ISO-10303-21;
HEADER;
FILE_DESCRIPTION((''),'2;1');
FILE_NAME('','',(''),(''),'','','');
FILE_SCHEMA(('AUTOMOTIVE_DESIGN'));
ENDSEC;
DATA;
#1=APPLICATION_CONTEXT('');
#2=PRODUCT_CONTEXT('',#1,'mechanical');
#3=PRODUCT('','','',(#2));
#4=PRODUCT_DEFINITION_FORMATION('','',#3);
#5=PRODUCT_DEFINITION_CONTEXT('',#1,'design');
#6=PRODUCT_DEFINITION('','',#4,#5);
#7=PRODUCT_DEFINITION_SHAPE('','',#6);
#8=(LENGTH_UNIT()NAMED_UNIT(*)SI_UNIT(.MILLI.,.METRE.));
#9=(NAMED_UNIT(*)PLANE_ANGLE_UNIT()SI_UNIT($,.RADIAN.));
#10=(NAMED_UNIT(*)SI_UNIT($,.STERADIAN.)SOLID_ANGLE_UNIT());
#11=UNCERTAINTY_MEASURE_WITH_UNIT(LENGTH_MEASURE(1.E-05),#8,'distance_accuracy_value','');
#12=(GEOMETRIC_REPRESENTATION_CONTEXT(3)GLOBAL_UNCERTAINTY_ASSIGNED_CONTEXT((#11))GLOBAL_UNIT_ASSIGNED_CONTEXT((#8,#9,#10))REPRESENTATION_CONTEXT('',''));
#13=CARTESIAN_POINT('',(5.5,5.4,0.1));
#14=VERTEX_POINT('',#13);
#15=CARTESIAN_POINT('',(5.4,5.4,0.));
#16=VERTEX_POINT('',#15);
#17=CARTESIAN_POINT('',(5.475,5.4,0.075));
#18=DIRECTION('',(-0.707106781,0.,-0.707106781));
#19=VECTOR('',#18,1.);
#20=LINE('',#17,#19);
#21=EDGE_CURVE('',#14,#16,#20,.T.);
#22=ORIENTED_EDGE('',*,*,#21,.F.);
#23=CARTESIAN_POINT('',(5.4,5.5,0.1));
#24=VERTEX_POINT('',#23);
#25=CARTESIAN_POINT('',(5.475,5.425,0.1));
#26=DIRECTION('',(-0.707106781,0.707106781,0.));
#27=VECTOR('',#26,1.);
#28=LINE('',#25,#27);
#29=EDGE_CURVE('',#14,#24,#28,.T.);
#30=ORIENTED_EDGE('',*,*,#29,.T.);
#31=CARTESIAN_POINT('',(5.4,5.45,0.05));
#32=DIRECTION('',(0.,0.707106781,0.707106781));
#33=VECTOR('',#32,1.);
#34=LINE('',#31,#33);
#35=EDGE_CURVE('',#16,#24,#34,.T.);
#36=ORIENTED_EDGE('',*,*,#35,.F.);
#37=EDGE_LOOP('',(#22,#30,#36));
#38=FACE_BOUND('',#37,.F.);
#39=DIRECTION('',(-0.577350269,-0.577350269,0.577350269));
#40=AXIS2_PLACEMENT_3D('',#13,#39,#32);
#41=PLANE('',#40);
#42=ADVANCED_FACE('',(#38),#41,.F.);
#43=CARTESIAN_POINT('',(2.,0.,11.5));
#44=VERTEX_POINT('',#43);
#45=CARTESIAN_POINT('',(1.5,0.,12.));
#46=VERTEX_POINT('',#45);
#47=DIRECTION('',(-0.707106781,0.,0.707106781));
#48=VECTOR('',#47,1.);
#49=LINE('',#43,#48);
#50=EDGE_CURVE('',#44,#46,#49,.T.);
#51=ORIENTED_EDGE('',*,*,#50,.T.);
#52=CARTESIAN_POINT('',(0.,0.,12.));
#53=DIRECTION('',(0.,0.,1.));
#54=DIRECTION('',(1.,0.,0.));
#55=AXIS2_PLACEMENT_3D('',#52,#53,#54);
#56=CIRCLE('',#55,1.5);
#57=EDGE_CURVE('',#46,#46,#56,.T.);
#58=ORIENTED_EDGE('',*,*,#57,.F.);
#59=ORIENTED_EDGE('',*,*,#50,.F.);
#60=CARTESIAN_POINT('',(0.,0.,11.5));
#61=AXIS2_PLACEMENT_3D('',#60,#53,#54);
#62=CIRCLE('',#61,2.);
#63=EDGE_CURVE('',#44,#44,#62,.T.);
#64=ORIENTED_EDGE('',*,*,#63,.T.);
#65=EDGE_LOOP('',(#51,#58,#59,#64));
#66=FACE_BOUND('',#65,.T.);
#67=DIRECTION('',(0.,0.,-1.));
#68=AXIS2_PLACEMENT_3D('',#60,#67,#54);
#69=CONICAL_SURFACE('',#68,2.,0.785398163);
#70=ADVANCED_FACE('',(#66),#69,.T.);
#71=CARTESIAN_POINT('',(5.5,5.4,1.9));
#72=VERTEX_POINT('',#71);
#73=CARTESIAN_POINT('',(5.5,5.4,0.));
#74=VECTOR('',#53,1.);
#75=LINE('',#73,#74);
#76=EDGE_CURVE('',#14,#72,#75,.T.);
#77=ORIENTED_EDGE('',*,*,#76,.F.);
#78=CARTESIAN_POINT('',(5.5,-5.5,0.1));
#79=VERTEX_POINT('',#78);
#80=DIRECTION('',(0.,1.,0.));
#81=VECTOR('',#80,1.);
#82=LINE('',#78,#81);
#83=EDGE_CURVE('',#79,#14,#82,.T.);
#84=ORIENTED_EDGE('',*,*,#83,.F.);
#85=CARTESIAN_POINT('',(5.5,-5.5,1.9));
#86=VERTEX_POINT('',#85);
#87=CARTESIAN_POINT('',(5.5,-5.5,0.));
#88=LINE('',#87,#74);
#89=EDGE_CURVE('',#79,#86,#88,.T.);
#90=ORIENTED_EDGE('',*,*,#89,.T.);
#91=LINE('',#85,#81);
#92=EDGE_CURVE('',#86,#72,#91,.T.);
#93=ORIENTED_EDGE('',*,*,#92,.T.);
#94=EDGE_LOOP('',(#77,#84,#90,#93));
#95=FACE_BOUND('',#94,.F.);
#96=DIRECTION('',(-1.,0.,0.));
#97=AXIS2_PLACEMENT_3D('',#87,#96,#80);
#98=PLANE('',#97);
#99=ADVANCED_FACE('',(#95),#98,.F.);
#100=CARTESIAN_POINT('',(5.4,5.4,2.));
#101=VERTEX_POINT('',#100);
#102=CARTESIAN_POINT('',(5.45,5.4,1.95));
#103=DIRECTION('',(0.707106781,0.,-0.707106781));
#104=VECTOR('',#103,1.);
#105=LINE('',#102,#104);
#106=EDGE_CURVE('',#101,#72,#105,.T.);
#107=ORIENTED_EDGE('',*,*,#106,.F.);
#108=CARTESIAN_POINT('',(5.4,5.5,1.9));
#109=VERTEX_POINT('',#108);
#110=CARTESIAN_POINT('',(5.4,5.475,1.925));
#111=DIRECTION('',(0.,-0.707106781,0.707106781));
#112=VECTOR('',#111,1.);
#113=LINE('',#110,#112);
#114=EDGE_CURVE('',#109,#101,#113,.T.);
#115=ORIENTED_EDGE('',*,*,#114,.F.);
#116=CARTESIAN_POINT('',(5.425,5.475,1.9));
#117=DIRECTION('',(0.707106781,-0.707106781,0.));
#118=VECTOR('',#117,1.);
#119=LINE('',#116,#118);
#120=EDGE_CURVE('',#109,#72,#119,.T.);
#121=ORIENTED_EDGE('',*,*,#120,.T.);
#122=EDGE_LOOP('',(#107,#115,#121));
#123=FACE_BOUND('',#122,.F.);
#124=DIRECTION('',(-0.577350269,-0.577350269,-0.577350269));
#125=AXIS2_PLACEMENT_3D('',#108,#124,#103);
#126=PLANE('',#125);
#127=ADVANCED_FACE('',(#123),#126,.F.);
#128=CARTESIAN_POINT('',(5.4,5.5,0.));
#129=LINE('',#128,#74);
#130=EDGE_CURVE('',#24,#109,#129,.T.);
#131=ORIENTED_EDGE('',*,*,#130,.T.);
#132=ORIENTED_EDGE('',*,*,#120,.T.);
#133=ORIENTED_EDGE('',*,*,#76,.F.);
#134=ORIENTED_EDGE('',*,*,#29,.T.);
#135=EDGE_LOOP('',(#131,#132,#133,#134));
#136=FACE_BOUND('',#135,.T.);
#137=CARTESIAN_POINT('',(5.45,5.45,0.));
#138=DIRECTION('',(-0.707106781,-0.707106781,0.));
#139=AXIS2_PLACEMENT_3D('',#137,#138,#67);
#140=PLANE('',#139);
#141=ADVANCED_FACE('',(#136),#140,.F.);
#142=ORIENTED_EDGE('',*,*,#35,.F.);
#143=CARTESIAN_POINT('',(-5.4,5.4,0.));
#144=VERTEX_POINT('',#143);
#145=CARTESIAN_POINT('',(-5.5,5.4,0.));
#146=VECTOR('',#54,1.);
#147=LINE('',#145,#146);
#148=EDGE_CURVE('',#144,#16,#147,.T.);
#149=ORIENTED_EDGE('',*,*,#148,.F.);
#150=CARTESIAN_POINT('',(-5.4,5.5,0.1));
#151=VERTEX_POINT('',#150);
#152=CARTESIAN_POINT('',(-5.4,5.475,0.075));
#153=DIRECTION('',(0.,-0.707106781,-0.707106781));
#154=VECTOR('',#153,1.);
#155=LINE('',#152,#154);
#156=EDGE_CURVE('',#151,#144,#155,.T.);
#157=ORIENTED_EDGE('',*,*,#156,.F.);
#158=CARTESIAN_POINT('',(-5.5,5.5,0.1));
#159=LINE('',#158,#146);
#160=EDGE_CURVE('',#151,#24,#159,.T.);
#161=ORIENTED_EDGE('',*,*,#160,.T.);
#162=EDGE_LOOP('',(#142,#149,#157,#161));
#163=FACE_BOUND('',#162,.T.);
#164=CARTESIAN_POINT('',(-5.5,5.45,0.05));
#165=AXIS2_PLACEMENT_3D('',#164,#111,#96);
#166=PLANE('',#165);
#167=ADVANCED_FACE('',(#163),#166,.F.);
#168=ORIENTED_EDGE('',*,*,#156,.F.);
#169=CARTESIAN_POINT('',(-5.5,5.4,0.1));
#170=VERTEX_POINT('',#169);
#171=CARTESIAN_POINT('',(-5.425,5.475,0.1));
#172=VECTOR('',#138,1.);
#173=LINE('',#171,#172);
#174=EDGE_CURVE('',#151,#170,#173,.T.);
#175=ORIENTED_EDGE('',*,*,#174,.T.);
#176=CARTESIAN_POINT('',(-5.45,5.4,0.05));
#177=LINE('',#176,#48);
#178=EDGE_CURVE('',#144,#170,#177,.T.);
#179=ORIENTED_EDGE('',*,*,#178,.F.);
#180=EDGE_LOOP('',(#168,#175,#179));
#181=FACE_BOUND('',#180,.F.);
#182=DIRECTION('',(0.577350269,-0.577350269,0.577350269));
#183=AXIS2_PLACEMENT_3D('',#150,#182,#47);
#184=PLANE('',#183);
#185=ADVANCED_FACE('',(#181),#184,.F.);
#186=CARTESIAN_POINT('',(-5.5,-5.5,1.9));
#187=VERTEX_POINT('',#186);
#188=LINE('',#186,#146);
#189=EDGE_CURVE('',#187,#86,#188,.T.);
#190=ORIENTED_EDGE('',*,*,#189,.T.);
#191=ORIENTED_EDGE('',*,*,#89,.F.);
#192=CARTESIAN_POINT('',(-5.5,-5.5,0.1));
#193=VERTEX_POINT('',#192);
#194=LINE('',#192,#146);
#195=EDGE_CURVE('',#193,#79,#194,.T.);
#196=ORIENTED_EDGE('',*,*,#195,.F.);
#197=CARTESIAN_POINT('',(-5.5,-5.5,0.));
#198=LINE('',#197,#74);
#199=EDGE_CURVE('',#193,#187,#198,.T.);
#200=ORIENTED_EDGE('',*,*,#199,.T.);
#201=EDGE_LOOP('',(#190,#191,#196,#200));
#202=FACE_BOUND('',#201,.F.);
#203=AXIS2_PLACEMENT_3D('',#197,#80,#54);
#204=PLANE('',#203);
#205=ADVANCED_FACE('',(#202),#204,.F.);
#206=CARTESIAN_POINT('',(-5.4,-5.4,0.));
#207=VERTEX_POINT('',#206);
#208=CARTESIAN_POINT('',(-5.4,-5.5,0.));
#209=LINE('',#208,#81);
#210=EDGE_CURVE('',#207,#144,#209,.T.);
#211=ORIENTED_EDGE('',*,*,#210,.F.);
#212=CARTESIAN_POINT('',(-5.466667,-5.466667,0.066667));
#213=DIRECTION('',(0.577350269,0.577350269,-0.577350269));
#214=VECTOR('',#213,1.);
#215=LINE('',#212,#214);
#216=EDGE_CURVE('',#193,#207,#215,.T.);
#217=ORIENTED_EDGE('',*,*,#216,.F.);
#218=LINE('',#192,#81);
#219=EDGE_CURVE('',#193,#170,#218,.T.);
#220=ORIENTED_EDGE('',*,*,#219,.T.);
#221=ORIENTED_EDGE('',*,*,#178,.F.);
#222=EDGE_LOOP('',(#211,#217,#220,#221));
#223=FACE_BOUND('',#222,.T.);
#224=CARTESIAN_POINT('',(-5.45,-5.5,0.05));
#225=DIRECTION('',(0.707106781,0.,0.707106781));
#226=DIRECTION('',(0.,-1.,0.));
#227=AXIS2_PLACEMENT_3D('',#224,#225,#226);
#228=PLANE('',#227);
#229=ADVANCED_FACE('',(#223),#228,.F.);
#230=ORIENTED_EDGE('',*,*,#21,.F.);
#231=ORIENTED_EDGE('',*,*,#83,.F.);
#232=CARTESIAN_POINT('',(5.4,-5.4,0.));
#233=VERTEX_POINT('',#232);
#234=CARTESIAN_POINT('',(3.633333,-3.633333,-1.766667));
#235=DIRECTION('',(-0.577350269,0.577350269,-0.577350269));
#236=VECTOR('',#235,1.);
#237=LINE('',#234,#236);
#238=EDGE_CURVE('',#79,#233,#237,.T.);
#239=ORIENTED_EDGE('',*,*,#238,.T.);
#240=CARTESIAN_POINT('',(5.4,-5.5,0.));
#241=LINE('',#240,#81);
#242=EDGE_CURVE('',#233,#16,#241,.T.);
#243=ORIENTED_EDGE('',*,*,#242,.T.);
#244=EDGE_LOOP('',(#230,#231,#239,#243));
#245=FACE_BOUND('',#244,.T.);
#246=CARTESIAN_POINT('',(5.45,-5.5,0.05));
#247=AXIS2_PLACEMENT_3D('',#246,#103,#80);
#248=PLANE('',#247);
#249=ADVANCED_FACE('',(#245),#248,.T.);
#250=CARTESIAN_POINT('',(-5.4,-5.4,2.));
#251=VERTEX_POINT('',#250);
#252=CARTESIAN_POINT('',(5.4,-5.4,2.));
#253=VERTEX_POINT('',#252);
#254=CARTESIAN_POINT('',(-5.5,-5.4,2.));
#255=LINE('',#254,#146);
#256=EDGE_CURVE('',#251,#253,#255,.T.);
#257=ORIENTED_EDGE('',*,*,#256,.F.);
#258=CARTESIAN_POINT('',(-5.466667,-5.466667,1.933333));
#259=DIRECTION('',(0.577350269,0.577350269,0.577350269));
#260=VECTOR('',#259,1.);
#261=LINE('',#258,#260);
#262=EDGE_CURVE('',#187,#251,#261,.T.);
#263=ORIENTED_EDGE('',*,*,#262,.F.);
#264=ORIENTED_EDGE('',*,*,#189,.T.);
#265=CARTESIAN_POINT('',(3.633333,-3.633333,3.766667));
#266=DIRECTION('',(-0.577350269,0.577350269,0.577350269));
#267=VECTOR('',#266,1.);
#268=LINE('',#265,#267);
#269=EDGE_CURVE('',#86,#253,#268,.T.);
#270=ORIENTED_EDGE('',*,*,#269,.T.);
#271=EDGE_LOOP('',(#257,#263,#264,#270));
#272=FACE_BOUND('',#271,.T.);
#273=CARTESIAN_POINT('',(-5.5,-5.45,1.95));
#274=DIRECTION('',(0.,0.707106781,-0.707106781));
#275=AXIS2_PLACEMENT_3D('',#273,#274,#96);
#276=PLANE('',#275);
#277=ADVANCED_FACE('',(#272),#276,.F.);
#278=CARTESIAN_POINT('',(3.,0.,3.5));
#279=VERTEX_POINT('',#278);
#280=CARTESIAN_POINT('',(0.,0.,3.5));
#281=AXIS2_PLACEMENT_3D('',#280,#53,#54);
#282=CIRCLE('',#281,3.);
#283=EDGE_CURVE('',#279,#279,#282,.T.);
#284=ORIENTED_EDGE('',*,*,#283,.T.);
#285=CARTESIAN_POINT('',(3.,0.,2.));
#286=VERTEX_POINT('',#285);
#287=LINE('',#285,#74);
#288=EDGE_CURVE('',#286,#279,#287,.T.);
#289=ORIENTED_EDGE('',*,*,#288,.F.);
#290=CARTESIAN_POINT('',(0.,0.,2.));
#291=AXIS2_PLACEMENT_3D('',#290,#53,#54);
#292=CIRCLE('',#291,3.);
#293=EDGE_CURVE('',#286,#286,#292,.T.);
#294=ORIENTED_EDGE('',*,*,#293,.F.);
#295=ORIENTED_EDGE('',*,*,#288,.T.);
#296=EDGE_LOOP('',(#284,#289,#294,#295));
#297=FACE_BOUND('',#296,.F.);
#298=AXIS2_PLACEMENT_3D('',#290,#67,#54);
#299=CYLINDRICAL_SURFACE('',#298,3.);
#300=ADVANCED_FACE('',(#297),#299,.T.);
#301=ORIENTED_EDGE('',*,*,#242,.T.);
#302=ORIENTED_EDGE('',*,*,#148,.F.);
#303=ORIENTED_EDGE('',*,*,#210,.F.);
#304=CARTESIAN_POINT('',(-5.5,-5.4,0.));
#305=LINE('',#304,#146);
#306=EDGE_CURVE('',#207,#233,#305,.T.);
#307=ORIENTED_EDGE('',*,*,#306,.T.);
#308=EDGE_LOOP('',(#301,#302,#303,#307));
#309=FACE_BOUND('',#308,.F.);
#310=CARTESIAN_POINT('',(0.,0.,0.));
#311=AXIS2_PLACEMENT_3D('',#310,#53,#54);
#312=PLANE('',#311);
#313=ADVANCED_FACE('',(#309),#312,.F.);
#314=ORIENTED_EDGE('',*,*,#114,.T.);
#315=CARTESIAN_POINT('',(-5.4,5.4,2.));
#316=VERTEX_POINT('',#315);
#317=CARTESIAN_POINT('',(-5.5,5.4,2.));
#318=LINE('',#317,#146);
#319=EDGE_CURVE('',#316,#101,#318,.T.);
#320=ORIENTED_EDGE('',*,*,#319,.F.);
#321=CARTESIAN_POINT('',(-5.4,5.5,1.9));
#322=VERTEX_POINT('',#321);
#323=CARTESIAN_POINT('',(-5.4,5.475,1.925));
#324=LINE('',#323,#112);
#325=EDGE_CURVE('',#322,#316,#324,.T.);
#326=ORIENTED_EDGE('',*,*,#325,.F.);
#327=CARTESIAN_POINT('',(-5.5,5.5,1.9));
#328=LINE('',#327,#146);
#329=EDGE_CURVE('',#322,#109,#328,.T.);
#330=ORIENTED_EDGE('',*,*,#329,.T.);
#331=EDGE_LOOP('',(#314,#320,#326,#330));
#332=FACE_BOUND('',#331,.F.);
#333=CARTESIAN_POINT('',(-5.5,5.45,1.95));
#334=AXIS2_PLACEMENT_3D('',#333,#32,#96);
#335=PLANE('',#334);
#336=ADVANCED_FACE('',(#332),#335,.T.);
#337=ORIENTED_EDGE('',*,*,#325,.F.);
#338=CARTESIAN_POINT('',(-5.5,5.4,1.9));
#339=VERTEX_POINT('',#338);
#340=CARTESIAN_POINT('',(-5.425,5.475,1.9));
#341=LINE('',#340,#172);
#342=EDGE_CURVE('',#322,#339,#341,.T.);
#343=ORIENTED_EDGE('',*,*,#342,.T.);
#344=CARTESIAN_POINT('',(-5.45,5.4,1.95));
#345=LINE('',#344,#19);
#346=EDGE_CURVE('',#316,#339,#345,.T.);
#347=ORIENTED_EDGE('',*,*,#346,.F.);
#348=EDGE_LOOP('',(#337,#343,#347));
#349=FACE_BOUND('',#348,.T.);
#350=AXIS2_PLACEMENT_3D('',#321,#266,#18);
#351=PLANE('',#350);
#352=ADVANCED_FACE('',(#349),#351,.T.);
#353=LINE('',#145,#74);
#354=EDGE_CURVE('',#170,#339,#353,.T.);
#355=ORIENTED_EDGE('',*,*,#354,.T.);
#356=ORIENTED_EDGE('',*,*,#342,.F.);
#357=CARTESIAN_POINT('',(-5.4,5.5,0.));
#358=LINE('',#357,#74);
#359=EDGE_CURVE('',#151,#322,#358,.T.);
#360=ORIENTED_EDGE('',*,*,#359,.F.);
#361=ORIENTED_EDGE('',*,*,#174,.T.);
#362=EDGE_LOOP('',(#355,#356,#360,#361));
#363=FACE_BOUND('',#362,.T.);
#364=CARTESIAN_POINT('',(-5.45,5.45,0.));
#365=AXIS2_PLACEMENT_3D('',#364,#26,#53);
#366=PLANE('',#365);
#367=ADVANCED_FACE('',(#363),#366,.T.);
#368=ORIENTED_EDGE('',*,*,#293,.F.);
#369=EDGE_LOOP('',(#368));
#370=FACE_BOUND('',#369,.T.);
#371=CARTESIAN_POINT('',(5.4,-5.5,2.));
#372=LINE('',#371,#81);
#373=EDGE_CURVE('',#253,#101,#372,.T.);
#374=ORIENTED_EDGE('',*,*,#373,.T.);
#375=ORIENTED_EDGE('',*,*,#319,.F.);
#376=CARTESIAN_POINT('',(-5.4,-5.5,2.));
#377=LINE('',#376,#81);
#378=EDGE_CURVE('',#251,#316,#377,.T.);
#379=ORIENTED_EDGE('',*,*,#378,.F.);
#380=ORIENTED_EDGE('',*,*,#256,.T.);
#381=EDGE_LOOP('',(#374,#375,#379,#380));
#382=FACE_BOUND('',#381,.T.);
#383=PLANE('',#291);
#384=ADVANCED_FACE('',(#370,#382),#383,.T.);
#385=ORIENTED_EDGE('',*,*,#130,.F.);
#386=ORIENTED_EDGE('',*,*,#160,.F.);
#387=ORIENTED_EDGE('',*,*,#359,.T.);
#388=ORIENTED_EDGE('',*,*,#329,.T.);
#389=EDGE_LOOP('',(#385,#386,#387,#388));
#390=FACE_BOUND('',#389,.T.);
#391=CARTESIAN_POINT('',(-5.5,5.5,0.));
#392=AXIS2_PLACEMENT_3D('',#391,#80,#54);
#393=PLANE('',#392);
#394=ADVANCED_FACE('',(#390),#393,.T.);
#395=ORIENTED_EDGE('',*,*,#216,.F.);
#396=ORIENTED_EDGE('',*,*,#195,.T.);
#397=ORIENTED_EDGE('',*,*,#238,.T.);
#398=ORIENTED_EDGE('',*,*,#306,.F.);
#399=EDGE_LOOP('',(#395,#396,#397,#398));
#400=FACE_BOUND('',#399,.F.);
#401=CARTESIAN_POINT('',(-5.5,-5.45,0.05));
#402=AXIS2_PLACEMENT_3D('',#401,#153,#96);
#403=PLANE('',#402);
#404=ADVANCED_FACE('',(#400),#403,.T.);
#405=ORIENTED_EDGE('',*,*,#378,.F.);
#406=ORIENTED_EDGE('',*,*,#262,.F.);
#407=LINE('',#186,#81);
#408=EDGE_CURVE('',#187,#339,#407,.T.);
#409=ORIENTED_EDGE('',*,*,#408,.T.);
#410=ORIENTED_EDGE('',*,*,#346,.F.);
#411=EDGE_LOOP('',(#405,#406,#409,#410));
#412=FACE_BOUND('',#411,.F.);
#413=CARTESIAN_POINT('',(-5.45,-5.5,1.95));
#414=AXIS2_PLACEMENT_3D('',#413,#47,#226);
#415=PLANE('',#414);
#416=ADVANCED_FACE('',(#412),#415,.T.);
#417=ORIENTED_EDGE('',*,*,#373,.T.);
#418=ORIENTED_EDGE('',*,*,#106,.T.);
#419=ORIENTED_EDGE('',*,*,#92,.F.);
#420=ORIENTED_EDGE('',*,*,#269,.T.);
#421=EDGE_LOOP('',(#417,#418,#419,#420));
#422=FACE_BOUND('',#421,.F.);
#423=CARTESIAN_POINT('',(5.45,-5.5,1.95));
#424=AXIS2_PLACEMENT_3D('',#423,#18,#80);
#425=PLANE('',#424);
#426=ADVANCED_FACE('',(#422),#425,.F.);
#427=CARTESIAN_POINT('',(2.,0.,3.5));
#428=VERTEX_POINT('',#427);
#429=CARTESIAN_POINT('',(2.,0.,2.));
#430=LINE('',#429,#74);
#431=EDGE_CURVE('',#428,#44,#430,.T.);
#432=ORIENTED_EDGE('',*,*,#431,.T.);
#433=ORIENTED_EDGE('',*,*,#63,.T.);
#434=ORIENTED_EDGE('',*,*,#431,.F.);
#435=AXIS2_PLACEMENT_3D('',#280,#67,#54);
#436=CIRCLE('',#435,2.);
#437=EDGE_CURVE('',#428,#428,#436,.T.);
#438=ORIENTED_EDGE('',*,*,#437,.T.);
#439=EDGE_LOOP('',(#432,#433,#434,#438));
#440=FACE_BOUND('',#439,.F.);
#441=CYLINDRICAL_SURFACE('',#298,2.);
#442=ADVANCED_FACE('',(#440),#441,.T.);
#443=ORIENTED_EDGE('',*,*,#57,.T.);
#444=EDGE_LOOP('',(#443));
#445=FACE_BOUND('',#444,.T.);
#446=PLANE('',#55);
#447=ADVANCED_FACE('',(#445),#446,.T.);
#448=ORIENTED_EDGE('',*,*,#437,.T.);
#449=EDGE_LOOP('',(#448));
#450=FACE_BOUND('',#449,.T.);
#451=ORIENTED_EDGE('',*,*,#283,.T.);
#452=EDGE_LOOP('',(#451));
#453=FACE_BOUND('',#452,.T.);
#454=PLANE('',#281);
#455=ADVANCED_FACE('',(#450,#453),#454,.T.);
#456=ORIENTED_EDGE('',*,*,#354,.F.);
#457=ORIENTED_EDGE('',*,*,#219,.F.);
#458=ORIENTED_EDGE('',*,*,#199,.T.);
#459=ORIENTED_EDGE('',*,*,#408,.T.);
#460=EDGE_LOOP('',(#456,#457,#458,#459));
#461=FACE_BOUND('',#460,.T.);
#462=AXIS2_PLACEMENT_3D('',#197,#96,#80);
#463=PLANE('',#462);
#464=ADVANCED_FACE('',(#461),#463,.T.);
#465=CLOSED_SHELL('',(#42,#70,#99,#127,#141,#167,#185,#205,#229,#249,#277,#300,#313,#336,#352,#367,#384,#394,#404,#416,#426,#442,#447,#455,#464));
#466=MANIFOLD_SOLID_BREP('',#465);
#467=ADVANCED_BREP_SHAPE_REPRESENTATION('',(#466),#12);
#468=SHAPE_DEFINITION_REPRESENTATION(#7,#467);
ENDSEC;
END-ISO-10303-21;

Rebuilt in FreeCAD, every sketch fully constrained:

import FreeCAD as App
import Part
import Sketcher
from FreeCAD import Vector
Q = App.Units.Quantity


def edges_at(feature, points):
    """Names of the edges that pass closest to the given points."""
    edges = feature.Shape.Edges
    near = lambda p: min(range(len(edges)), key=lambda i: edges[i].distToShape(Part.Vertex(*p))[0])
    return sorted({f"Edge{near(p) + 1}" for p in points})

doc = App.newDocument("Part")
params = doc.addObject("Spreadsheet::Sheet", "Params")
for row, (alias, value) in enumerate([
    ("sketch1_width", "11 mm"),
    ("pad1_length", "2 mm"),
    ("sketch2_diameter", "4 mm"),
    ("pad2_length", "10 mm"),
    ("chamfer_size", "0.1 mm"),
    ("sketch3_diameter", "6 mm"),
    ("pad3_length", "1.5 mm"),
    ("chamfer2_size", "0.5 mm"),
], start=1):
    params.set(f"A{row}", alias)
    params.set(f"B{row}", "=" + value)
    params.setAlias(f"B{row}", alias)

body = doc.addObject("PartDesign::Body", "Body")

# Sketch on XY plane
sketch1 = body.newObject("Sketcher::SketchObject", "Sketch")
sketch1.AttachmentSupport = (doc.getObject("XY_Plane"), [""])
sketch1.MapMode = "FlatFace"
sketch1.addGeometry([
    Part.LineSegment(Vector(-6, 6, 0), Vector(-6, -6, 0)),
    Part.LineSegment(Vector(-6, -6, 0), Vector(6, -6, 0)),
    Part.LineSegment(Vector(6, -6, 0), Vector(6, 6, 0)),
    Part.LineSegment(Vector(6, 6, 0), Vector(-6, 6, 0)),
], False)
sketch1.addConstraint([
    Sketcher.Constraint("Coincident", 0, 2, 1, 1),
    Sketcher.Constraint("Coincident", 1, 2, 2, 1),
    Sketcher.Constraint("Coincident", 2, 2, 3, 1),
    Sketcher.Constraint("Coincident", 3, 2, 0, 1),
    Sketcher.Constraint("Vertical", 0),
    Sketcher.Constraint("Horizontal", 1),
    Sketcher.Constraint("Vertical", 2),
    Sketcher.Constraint("Horizontal", 3),
    Sketcher.Constraint("Symmetric", 0, 2, 2, 2, -1, 1),
    Sketcher.Constraint("Equal", 3, 0),
    Sketcher.Constraint("DistanceX", 1, 1, 1, 2, Q("11 mm")),
])
sketch1.setExpression("Constraints[10]", "Params.sketch1_width")
pad1 = body.newObject("PartDesign::Pad", "Pad")
pad1.Profile = sketch1
pad1.setExpression("Length", "Params.pad1_length")

# Sketch on XY plane
sketch2 = body.newObject("Sketcher::SketchObject", "Sketch001")
sketch2.AttachmentSupport = (doc.getObject("XY_Plane"), [""])
sketch2.MapMode = "FlatFace"
sketch2.AttachmentOffset = App.Placement(Vector(0, 0, 2), App.Rotation())
sketch2.addGeometry(Part.Circle(Vector(0, 0, 0), Vector(0, 0, 1), 2), False)
sketch2.addConstraint([
    Sketcher.Constraint("Coincident", 0, 3, -1, 1),
    Sketcher.Constraint("Diameter", 0, Q("4 mm")),
])
sketch2.setExpression("Constraints[1]", "Params.sketch2_diameter")
pad2 = body.newObject("PartDesign::Pad", "Pad001")
pad2.Profile = sketch2
pad2.setExpression("Length", "Params.pad2_length")
doc.recompute()

chamfer = body.newObject("PartDesign::Chamfer", "Chamfer")
chamfer.Base = (pad2, edges_at(pad2, [
    (-5.5, 0, 2),
    (0, -5.5, 2),
    (5.5, 0, 2),
    (0, -5.5, 0),
    (-5.5, 0, 0),
    (0, 5.5, 0),
    (5.5, 0, 0),
    (0, 5.5, 2),
    (-5.5, 5.5, 1),
    (5.5, 5.5, 1),
]))
chamfer.setExpression("Size", "Params.chamfer_size")

# Sketch on XY plane
sketch3 = body.newObject("Sketcher::SketchObject", "Sketch002")
sketch3.AttachmentSupport = (doc.getObject("XY_Plane"), [""])
sketch3.MapMode = "FlatFace"
sketch3.AttachmentOffset = App.Placement(Vector(0, 0, 2), App.Rotation())
sketch3.addGeometry(Part.Circle(Vector(0, 0, 0), Vector(0, 0, 1), 3), False)
sketch3.addConstraint([
    Sketcher.Constraint("Coincident", 0, 3, -1, 1),
    Sketcher.Constraint("Diameter", 0, Q("6 mm")),
])
sketch3.setExpression("Constraints[1]", "Params.sketch3_diameter")
pad3 = body.newObject("PartDesign::Pad", "Pad002")
pad3.Profile = sketch3
pad3.setExpression("Length", "Params.pad3_length")
doc.recompute()

chamfer2 = body.newObject("PartDesign::Chamfer", "Chamfer001")
chamfer2.Base = (pad3, edges_at(pad3, [(-2, 0, 12)]))
chamfer2.setExpression("Size", "Params.chamfer2_size")

doc.recompute()
